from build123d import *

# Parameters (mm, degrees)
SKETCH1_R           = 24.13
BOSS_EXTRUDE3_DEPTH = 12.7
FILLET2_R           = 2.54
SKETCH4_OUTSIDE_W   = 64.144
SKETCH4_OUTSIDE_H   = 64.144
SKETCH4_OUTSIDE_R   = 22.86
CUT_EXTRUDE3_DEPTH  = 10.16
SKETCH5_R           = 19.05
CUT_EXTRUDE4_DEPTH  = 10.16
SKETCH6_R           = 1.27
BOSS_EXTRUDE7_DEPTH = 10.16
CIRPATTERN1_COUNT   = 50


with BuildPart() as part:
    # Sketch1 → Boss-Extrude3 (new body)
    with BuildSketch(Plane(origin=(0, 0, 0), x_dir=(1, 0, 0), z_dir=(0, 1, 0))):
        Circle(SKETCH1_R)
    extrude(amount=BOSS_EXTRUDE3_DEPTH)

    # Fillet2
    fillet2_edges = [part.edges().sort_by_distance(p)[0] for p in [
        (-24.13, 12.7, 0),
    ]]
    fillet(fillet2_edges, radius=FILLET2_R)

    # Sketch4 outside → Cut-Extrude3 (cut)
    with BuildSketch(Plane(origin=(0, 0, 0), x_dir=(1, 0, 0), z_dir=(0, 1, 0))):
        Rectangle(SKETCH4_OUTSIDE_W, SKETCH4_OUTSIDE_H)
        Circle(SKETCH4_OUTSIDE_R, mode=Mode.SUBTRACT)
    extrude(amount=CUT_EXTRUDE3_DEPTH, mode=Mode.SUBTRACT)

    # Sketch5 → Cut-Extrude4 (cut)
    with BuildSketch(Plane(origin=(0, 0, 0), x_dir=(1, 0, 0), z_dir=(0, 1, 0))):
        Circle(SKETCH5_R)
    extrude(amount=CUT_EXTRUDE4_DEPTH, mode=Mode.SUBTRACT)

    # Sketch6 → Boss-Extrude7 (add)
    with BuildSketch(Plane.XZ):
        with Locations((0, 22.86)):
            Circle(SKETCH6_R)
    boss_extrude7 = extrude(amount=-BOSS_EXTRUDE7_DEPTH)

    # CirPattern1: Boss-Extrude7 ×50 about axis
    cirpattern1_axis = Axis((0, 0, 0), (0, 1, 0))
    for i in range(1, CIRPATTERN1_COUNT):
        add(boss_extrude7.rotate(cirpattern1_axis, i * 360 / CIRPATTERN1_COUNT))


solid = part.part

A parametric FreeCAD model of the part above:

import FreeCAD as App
import Part
import Sketcher
from FreeCAD import Vector
Q = App.Units.Quantity


def edges_at(feature, points):
    """Names of the edges that pass closest to the given points."""
    edges = feature.Shape.Edges
    near = lambda p: min(range(len(edges)), key=lambda i: edges[i].distToShape(Part.Vertex(*p))[0])
    return sorted({f"Edge{near(p) + 1}" for p in points})

doc = App.newDocument("Part")
body = doc.addObject("PartDesign::Body", "Body")

# Sketch on XZ plane
sketch1 = body.newObject("Sketcher::SketchObject", "Sketch")
sketch1.AttachmentSupport = (doc.getObject("XZ_Plane"), [""])
sketch1.MapMode = "FlatFace"
sketch1.addGeometry(Part.Circle(Vector(0, 0, 0), Vector(0, 0, 1), 24.13), False)
sketch1.addConstraint(Sketcher.Constraint("Coincident", 0, 3, -1, 1))
sketch1.addConstraint(Sketcher.Constraint("Diameter", 0, Q("1.9 in")))
pad1 = body.newObject("PartDesign::Pad", "Pad")
pad1.Profile = sketch1
pad1.Length = Q("0.5 in")
pad1.Reversed = True
doc.recompute()

fillet = body.newObject("PartDesign::Fillet", "Fillet")
fillet.Base = (pad1, edges_at(pad1, [(-24.13, 12.7, 0)]))
fillet.Radius = Q("0.1 in")

# Sketch on XZ plane
sketch2 = body.newObject("Sketcher::SketchObject", "Sketch001")
sketch2.AttachmentSupport = (doc.getObject("XZ_Plane"), [""])
sketch2.MapMode = "FlatFace"
sketch2.addGeometry(Part.LineSegment(Vector(-32.072, -32.072, 0), Vector(-32.072, 32.072, 0)), False)
sketch2.addGeometry(Part.LineSegment(Vector(-32.072, 32.072, 0), Vector(32.072, 32.072, 0)), False)
sketch2.addGeometry(Part.LineSegment(Vector(32.072, 32.072, 0), Vector(32.072, -32.072, 0)), False)
sketch2.addGeometry(Part.LineSegment(Vector(32.072, -32.072, 0), Vector(-32.072, -32.072, 0)), False)
sketch2.addGeometry(Part.Circle(Vector(0, 0, 0), Vector(0, 0, 1), 22.86), False)
sketch2.addConstraint(Sketcher.Constraint("Coincident", 0, 2, 1, 1))
sketch2.addConstraint(Sketcher.Constraint("Coincident", 1, 2, 2, 1))
sketch2.addConstraint(Sketcher.Constraint("Coincident", 2, 2, 3, 1))
sketch2.addConstraint(Sketcher.Constraint("Coincident", 3, 2, 0, 1))
sketch2.addConstraint(Sketcher.Constraint("Vertical", 0))
sketch2.addConstraint(Sketcher.Constraint("Horizontal", 1))
sketch2.addConstraint(Sketcher.Constraint("Vertical", 2))
sketch2.addConstraint(Sketcher.Constraint("Horizontal", 3))
sketch2.addConstraint(Sketcher.Constraint("Coincident", 4, 3, -1, 1))
sketch2.addConstraint(Sketcher.Constraint("Symmetric", 0, 2, 2, 2, -1, 1))
sketch2.addConstraint(Sketcher.Constraint("Equal", 3, 0))
sketch2.addConstraint(Sketcher.Constraint("Diameter", 4, Q("1.8 in")))
sketch2.addConstraint(Sketcher.Constraint("DistanceX", 1, 1, 1, 2, 64.144))
pocket1 = body.newObject("PartDesign::Pocket", "Pocket")
pocket1.Profile = sketch2
pocket1.Length = Q("0.4 in")

# Sketch on XZ plane
sketch3 = body.newObject("Sketcher::SketchObject", "Sketch002")
sketch3.AttachmentSupport = (doc.getObject("XZ_Plane"), [""])
sketch3.MapMode = "FlatFace"
sketch3.addGeometry(Part.Circle(Vector(0, 0, 0), Vector(0, 0, 1), 19.05), False)
sketch3.addConstraint(Sketcher.Constraint("Coincident", 0, 3, -1, 1))
sketch3.addConstraint(Sketcher.Constraint("Diameter", 0, Q("1.5 in")))
pocket2 = body.newObject("PartDesign::Pocket", "Pocket001")
pocket2.Profile = sketch3
pocket2.Length = Q("0.4 in")

# Sketch on XZ plane
sketch4 = body.newObject("Sketcher::SketchObject", "Sketch003")
sketch4.AttachmentSupport = (doc.getObject("XZ_Plane"), [""])
sketch4.MapMode = "FlatFace"
sketch4.addGeometry(Part.Circle(Vector(0, 22.86, 0), Vector(0, 0, 1), 1.27), False)
sketch4.addConstraint(Sketcher.Constraint("PointOnObject", 0, 3, -2))
sketch4.addConstraint(Sketcher.Constraint("Diameter", 0, Q("0.1 in")))
sketch4.addConstraint(Sketcher.Constraint("DistanceY", -1, 1, 0, 3, Q("0.9 in")))
pad2 = body.newObject("PartDesign::Pad", "Pad001")
pad2.Profile = sketch4
pad2.Length = Q("0.4 in")
pad2.Reversed = True
doc.recompute()

polarpattern = body.newObject("PartDesign::PolarPattern", "PolarPattern")
polarpattern.Originals = [pad2]
polarpattern.Axis = (doc.getObject("Y_Axis"), [""])
polarpattern.Angle = 360
polarpattern.Occurrences = 50
body.Tip = polarpattern

doc.recompute()
